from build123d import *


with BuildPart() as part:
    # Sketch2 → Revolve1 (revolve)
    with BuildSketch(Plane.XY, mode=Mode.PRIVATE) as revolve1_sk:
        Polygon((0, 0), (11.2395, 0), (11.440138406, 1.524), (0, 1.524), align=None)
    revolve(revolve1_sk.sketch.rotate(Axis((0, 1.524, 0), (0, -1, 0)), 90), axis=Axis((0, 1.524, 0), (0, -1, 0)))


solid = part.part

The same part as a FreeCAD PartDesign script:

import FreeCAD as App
import Part
import Sketcher

V = App.Vector
Q = App.Units.Quantity


def add_polygon(sketch, points):
    """Adds a closed chain of lines whose ends are joined by coincident constraints."""
    first, n = sketch.GeometryCount, len(points)
    for a, b in zip(points, points[1:] + points[:1]):
        sketch.addGeometry(Part.LineSegment(App.Vector(*a, 0), App.Vector(*b, 0)), False)
    for i in range(n):
        sketch.addConstraint(Sketcher.Constraint("Coincident", first + i, 2, first + (i + 1) % n, 1))

doc = App.newDocument("Part")
body = doc.addObject("PartDesign::Body", "Body")

# Sketch on XY plane
sketch1 = doc.addObject("Sketcher::SketchObject", "Sketch")
body.addObject(sketch1)
sketch1.AttachmentSupport = (doc.XY_Plane, [""])
sketch1.MapMode = "FlatFace"
add_polygon(sketch1, [(0, 0), (11.2, 0), (11.4, 1.5), (0, 1.5)])  # lines 0-3
sketch1.addConstraint([
    Sketcher.Constraint("Horizontal", 0),
    Sketcher.Constraint("Horizontal", 2),
    Sketcher.Constraint("Vertical", 3),
    Sketcher.Constraint("Coincident", 3, 2, -1, 1),
    Sketcher.Constraint("DistanceY", 3, 2, 3, 1, Q("0.06 in")),
    Sketcher.Constraint("Angle", 1, Q("82.5 deg")),
    Sketcher.Constraint("DistanceX", 0, 1, 0, 2, Q("0.4425 in")),
])
revolution = doc.addObject("PartDesign::Revolution", "Revolution")
body.addObject(revolution)
revolution.Profile = sketch1
revolution.ReferenceAxis = (sketch1, ["V_Axis"])
revolution.Angle = 360

doc.recompute()
